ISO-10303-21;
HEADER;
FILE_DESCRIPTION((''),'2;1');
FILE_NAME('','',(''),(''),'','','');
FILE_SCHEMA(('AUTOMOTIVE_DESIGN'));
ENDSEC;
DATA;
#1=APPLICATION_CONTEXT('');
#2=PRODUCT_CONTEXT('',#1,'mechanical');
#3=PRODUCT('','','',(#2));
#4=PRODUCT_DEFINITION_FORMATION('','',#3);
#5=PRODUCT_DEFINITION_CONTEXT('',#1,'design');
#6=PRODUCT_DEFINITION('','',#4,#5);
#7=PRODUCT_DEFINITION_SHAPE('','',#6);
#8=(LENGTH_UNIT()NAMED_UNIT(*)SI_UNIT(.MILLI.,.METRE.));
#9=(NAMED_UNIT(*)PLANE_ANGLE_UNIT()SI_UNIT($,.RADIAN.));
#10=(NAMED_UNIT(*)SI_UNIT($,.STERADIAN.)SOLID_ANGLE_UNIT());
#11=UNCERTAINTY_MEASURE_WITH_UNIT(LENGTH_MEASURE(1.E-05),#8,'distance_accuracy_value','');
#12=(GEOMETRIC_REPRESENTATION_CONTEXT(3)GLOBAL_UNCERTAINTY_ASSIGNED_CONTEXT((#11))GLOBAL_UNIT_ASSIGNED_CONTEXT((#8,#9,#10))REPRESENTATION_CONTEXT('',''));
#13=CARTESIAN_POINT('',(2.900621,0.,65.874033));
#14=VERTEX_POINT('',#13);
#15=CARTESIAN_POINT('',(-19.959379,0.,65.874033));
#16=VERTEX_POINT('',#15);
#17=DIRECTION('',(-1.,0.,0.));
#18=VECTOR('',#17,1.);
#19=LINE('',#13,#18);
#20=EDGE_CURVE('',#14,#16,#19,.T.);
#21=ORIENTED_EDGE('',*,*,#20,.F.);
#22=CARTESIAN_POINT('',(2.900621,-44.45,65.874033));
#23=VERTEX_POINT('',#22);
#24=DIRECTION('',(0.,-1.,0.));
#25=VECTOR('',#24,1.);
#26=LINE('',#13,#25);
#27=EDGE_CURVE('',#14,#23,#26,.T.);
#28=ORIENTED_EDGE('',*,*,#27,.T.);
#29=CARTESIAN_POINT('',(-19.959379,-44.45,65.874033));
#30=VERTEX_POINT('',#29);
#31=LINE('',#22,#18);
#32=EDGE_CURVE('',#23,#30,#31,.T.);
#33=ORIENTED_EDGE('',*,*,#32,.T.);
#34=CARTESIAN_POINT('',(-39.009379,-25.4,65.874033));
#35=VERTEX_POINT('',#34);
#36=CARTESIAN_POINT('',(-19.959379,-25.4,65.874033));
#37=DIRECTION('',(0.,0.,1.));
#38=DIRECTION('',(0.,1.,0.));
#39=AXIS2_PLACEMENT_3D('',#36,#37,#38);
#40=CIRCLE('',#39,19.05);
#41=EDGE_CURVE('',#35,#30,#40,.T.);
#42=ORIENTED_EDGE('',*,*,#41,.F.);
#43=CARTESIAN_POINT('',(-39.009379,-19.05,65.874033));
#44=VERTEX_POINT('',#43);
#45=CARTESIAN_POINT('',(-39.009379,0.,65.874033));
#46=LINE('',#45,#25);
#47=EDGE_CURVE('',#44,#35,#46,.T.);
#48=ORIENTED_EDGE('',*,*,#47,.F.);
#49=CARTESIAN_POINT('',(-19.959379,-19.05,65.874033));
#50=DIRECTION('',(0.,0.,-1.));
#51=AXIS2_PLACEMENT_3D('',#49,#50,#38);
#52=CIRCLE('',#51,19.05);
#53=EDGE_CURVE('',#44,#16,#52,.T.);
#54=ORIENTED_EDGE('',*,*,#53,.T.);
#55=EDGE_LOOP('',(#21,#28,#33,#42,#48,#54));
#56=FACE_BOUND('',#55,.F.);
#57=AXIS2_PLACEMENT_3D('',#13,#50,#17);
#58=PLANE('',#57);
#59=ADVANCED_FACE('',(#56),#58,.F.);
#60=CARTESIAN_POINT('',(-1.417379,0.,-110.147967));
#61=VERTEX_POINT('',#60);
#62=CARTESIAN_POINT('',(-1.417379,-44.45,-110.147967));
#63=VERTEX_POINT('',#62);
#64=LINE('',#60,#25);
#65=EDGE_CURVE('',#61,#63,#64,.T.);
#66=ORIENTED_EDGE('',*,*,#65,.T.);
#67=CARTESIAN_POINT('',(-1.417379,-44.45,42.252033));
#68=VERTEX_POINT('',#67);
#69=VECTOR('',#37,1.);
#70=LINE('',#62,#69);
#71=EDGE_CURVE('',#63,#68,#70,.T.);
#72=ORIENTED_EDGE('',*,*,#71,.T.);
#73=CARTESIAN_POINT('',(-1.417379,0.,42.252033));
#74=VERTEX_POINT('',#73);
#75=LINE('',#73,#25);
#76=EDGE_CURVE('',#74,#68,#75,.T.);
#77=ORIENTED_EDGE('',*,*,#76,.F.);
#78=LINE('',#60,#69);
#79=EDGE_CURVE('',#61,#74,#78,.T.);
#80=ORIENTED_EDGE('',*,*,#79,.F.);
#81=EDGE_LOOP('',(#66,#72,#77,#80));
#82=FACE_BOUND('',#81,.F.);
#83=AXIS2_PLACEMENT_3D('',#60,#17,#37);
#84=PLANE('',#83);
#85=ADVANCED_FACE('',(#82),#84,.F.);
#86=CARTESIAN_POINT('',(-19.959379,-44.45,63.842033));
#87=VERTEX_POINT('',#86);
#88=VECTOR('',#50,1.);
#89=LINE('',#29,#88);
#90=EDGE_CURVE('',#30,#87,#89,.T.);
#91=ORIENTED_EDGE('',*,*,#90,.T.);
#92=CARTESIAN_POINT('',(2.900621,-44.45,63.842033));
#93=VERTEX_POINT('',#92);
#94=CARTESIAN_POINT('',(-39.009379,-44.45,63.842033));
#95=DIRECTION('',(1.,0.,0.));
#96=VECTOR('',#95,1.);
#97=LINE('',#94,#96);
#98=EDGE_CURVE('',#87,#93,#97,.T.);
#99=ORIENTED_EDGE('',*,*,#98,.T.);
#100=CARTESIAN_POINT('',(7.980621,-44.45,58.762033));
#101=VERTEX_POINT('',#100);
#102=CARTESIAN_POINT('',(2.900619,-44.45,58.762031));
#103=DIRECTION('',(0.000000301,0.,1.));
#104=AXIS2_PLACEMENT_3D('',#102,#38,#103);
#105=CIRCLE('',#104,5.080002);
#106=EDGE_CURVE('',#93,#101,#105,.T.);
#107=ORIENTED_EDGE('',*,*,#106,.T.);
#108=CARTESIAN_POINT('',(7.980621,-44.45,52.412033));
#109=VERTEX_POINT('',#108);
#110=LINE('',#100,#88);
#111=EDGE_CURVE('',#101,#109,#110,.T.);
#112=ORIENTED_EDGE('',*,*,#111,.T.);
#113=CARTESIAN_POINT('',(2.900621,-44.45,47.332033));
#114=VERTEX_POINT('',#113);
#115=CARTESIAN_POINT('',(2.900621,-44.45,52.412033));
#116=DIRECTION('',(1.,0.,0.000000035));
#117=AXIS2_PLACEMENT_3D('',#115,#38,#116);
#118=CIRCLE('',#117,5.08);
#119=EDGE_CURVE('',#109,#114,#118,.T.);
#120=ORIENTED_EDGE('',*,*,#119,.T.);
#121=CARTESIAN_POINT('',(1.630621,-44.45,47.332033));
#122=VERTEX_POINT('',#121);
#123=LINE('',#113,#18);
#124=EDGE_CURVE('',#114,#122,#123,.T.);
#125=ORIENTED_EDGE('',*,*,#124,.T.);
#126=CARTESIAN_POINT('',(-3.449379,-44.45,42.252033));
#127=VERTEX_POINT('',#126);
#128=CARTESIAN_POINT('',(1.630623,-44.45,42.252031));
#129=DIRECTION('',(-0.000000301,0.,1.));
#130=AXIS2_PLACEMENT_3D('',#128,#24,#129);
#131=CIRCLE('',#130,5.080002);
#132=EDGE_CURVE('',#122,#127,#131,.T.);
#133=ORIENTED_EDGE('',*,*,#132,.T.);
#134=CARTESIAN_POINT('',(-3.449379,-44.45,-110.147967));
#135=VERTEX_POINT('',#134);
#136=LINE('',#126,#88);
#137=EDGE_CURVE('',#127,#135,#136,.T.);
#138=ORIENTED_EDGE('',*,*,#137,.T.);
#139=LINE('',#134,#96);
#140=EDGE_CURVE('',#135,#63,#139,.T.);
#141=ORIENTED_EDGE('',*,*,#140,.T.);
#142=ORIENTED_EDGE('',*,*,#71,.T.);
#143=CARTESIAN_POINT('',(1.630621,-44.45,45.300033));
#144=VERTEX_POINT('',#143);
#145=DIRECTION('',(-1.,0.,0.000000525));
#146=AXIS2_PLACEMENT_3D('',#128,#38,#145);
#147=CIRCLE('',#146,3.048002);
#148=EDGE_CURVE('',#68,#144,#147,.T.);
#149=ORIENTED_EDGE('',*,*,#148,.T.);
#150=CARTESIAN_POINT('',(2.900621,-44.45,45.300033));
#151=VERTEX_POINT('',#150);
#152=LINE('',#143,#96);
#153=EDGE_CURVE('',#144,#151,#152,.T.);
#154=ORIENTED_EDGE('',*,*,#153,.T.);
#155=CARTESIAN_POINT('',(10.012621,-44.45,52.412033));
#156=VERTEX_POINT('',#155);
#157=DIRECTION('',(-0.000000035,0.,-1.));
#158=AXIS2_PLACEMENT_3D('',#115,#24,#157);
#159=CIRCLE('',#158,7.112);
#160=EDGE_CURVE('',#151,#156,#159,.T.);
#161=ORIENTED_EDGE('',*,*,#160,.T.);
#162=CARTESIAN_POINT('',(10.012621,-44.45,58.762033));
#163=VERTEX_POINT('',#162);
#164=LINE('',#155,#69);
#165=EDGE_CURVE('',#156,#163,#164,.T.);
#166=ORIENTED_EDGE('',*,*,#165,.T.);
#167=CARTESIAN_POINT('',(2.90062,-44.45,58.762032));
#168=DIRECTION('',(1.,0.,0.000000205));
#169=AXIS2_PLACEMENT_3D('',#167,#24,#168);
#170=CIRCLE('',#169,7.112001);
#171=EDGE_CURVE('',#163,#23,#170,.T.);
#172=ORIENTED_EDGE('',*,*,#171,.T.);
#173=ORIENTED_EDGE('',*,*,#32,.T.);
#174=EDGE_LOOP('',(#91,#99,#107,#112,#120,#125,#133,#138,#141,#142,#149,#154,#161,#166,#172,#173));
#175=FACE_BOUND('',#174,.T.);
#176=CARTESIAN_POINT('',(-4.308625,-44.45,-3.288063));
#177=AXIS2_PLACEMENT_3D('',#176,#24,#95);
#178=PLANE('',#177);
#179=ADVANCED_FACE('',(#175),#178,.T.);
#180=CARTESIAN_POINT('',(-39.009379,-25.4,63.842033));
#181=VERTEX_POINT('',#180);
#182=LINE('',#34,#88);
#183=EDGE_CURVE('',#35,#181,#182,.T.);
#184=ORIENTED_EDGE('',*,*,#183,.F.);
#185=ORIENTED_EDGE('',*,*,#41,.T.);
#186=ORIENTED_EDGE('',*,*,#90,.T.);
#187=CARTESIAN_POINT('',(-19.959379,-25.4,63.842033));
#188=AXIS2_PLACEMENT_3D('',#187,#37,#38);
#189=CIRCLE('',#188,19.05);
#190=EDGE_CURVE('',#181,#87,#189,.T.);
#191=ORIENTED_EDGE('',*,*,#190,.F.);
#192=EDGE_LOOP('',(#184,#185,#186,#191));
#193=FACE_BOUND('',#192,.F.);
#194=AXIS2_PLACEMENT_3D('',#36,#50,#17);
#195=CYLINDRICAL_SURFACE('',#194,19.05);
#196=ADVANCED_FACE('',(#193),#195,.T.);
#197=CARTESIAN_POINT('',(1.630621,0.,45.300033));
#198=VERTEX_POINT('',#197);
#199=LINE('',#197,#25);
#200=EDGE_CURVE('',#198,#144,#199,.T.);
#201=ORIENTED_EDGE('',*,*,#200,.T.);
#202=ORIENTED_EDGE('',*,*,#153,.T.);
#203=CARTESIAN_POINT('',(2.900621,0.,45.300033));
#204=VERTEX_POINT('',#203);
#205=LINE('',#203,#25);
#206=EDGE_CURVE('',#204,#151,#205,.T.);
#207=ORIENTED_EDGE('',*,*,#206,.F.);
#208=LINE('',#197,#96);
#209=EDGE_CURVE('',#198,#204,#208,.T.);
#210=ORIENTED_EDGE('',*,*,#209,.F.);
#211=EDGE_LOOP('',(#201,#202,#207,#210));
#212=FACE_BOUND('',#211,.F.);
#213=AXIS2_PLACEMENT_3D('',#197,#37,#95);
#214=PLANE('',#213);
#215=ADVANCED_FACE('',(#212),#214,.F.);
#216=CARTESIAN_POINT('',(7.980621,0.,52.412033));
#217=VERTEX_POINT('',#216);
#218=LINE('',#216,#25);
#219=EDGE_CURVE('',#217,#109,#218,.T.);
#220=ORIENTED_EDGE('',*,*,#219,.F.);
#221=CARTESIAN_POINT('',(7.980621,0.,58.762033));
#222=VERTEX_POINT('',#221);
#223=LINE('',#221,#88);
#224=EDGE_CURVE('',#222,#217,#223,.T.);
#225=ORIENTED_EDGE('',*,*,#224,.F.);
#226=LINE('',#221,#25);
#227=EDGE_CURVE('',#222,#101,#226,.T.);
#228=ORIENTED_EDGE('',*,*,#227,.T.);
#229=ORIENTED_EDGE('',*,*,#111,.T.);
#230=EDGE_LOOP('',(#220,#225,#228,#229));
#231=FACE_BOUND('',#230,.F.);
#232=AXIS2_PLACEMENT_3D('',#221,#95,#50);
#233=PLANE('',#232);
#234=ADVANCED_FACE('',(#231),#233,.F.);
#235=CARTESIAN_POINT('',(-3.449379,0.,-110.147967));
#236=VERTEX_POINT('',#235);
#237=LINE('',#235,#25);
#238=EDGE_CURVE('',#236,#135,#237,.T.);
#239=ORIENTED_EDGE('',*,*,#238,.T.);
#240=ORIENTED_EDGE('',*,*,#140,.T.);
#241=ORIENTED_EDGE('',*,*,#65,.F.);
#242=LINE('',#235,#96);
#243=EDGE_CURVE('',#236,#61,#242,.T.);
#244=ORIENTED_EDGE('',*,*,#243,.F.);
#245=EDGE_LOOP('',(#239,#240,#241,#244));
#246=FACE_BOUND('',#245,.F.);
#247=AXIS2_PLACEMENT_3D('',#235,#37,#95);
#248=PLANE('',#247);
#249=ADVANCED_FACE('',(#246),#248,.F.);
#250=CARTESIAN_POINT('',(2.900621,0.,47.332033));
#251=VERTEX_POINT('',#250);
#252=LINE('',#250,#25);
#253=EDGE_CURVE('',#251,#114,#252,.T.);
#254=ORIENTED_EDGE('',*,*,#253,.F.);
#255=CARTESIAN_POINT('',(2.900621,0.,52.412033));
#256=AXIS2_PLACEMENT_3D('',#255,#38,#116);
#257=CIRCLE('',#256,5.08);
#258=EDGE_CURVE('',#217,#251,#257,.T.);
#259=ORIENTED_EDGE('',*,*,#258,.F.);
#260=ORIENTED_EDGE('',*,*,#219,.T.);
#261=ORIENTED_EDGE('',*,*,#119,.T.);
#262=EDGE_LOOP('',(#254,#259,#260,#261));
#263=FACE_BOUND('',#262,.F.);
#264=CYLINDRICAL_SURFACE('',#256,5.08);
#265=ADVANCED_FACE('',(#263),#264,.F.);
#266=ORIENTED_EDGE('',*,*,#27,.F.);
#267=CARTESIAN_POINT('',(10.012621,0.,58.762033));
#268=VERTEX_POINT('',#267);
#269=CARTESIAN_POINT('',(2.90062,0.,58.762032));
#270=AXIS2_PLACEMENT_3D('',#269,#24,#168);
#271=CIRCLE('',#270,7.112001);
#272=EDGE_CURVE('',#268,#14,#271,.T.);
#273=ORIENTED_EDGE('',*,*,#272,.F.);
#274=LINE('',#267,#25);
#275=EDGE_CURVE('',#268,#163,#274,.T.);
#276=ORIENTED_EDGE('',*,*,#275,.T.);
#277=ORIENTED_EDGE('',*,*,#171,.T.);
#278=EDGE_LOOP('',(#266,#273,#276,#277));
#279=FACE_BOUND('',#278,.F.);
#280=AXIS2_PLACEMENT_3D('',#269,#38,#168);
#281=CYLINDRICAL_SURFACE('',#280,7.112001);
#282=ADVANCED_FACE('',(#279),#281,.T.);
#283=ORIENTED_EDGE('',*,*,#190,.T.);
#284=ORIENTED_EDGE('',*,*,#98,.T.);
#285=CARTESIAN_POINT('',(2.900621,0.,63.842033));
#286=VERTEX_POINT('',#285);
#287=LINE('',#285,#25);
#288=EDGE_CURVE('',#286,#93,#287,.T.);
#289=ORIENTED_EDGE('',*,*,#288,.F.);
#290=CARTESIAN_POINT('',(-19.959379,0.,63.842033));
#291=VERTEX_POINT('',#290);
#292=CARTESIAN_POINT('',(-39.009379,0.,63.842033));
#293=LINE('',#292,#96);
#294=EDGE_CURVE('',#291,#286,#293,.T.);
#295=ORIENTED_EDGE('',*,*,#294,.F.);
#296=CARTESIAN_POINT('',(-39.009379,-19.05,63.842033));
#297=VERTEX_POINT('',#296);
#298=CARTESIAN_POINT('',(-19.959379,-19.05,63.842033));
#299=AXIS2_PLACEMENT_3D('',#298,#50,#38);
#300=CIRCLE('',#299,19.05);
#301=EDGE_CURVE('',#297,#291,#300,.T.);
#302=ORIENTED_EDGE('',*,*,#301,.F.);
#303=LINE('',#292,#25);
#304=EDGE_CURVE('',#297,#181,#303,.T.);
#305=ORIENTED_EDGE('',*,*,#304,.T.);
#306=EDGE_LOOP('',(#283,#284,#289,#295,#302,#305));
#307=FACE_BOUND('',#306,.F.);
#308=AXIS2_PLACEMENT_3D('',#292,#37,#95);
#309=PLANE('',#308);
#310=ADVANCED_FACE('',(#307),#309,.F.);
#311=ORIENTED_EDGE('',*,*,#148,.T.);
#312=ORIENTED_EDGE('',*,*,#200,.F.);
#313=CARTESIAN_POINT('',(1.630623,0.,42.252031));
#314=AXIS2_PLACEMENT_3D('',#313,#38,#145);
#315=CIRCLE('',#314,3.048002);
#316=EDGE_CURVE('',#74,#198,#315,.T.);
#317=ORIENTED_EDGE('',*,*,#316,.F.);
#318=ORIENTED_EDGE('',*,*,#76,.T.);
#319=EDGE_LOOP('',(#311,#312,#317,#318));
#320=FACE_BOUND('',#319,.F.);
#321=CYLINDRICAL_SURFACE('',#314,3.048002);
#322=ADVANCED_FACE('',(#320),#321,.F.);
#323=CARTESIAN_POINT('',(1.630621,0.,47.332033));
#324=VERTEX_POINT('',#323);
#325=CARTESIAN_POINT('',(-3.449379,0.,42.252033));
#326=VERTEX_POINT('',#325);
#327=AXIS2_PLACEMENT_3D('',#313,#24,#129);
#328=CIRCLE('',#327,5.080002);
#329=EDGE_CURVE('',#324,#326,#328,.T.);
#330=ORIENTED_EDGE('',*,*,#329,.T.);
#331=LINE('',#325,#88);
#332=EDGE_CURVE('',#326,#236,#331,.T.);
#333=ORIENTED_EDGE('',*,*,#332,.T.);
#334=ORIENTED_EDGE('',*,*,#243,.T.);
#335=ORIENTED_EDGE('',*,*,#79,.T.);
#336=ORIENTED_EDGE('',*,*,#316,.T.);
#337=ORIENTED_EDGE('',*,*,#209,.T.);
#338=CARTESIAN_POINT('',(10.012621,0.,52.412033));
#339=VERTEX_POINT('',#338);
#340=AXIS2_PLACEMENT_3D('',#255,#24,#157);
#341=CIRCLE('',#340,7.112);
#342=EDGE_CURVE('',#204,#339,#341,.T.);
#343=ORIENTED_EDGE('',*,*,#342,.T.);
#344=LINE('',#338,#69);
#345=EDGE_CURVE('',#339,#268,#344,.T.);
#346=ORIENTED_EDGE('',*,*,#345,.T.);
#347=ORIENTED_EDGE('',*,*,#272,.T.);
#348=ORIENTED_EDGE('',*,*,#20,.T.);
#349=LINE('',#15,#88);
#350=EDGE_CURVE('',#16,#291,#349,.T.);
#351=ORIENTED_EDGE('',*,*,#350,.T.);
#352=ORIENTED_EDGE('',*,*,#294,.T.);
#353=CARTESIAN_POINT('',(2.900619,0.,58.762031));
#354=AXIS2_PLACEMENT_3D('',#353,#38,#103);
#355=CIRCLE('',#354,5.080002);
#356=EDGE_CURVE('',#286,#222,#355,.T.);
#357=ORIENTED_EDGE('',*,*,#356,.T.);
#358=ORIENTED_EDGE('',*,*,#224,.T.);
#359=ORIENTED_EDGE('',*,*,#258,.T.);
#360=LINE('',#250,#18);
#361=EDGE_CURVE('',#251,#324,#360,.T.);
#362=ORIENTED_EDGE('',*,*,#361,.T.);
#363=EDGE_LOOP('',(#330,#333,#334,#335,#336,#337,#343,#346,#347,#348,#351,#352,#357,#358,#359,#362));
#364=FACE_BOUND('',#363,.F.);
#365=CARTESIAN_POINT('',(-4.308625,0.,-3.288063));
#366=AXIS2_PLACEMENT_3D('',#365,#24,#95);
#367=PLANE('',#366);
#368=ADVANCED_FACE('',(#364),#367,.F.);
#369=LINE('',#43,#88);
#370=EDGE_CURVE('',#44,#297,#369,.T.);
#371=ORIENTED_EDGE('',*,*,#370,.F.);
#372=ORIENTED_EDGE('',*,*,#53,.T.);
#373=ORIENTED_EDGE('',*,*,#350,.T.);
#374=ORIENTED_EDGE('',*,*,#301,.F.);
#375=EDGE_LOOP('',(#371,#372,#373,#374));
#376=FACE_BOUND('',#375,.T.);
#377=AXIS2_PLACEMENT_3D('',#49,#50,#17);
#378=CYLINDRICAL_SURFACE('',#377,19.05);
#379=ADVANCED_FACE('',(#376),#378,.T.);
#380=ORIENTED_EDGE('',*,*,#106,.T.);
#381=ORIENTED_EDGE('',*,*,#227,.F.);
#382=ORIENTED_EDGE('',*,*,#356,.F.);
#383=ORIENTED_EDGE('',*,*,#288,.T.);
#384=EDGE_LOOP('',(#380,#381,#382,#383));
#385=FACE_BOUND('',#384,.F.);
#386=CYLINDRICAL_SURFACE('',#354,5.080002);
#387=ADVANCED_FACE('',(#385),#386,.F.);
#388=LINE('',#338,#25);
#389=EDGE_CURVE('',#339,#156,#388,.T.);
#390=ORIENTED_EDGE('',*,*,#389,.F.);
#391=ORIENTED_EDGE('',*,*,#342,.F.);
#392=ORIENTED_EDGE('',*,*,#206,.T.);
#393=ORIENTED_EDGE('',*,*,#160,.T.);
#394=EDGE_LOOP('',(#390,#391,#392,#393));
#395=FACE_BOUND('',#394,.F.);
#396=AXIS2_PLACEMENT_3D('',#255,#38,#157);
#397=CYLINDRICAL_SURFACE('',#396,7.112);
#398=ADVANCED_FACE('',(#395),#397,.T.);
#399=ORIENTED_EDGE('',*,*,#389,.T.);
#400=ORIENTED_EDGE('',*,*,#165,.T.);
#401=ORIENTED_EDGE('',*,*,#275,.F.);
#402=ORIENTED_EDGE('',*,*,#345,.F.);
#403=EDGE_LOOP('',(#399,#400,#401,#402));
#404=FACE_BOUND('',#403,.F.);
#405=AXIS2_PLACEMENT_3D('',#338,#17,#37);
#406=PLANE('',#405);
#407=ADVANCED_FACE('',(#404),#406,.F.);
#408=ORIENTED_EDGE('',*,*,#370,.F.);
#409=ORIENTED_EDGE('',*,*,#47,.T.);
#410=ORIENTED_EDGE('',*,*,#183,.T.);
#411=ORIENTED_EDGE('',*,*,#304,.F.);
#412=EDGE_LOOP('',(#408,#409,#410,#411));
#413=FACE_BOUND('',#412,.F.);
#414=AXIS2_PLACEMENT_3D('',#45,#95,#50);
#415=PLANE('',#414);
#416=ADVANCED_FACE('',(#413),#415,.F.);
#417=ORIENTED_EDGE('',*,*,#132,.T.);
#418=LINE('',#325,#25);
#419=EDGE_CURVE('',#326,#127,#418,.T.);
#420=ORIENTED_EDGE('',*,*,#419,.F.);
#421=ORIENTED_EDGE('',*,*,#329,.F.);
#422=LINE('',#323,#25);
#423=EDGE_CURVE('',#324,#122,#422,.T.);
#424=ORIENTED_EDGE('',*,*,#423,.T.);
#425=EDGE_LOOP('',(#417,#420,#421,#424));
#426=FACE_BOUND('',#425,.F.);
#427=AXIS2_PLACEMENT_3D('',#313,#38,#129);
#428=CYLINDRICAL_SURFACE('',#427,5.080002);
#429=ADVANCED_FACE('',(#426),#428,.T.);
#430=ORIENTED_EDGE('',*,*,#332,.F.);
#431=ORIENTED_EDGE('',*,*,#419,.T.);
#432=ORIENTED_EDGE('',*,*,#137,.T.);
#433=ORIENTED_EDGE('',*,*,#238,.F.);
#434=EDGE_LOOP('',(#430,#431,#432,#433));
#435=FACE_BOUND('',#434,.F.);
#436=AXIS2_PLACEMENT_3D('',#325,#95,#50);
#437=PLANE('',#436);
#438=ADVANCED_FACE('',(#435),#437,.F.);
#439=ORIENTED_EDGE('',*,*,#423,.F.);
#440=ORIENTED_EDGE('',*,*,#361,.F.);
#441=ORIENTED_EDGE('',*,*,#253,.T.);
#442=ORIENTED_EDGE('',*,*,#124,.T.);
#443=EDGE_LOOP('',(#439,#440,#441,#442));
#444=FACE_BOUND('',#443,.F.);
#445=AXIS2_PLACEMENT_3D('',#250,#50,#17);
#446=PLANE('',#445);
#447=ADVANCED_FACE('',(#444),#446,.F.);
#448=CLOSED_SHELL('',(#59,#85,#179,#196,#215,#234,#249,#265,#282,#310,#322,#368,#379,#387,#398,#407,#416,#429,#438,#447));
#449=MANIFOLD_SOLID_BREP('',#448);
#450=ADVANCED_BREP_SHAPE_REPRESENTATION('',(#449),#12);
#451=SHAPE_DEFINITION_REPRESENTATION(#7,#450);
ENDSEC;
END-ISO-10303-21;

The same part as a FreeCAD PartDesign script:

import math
import FreeCAD as App
import Part
import Sketcher
Q = App.Units.Quantity


def edges_at(feature, points):
    """Names of the edges that pass closest to the given points."""
    edges = feature.Shape.Edges
    near = lambda p: min(range(len(edges)), key=lambda i: edges[i].distToShape(Part.Vertex(*p))[0])
    return sorted({f"Edge{near(p) + 1}" for p in points})

doc = App.newDocument("Part")
body = doc.addObject("PartDesign::Body", "Body")

sketch1 = body.newObject("Sketcher::SketchObject", "Sketch")
sketch1.AttachmentSupport = (doc.getObject("XZ_Plane"), [""])
sketch1.MapMode = "FlatFace"
sketch1.addGeometry([
    Part.LineSegment(App.Vector(-39, 65.9, 0), App.Vector(-39, 63.8, 0)),
    Part.LineSegment(App.Vector(-39, 63.8, 0), App.Vector(2.9, 63.8, 0)),
    Part.ArcOfCircle(Part.Circle(App.Vector(2.9, 58.8, 0), App.Vector(0, 0, 1), 5.1), math.radians(0), math.radians(90)),
    Part.LineSegment(App.Vector(8, 58.8, 0), App.Vector(8, 52.4, 0)),
    Part.ArcOfCircle(Part.Circle(App.Vector(2.9, 52.4, 0), App.Vector(0, 0, 1), 5.1), math.radians(-90), math.radians(0)),
    Part.LineSegment(App.Vector(2.9, 47.3, 0), App.Vector(1.6, 47.3, 0)),
    Part.ArcOfCircle(Part.Circle(App.Vector(1.6, 42.3, 0), App.Vector(0, 0, 1), 5.1), math.radians(90), math.radians(180)),
    Part.LineSegment(App.Vector(-3.4, 42.3, 0), App.Vector(-3.4, -110.1, 0)),
    Part.LineSegment(App.Vector(-3.4, -110.1, 0), App.Vector(-1.4, -110.1, 0)),
    Part.LineSegment(App.Vector(-1.4, -110.1, 0), App.Vector(-1.4, 42.3, 0)),
    Part.ArcOfCircle(Part.Circle(App.Vector(1.6, 42.3, 0), App.Vector(0, 0, 1), 3), math.radians(90), math.radians(180)),
    Part.LineSegment(App.Vector(1.6, 45.3, 0), App.Vector(2.9, 45.3, 0)),
    Part.ArcOfCircle(Part.Circle(App.Vector(2.9, 52.4, 0), App.Vector(0, 0, 1), 7.1), math.radians(-90), math.radians(0)),
    Part.LineSegment(App.Vector(10, 52.4, 0), App.Vector(10, 58.8, 0)),
    Part.ArcOfCircle(Part.Circle(App.Vector(2.9, 58.8, 0), App.Vector(0, 0, 1), 7.1), math.radians(0), math.radians(90)),
    Part.LineSegment(App.Vector(2.9, 65.9, 0), App.Vector(-39, 65.9, 0)),
], False)
sketch1.addConstraint([
    Sketcher.Constraint("Coincident", 0, 2, 1, 1),
    Sketcher.Constraint("Tangent", 1, 2, 2, 2),
    Sketcher.Constraint("Tangent", 2, 1, 3, 1),
    Sketcher.Constraint("Tangent", 3, 2, 4, 2),
    Sketcher.Constraint("Tangent", 4, 1, 5, 1),
    Sketcher.Constraint("Tangent", 5, 2, 6, 1),
    Sketcher.Constraint("Tangent", 6, 2, 7, 1),
    Sketcher.Constraint("Coincident", 7, 2, 8, 1),
    Sketcher.Constraint("Coincident", 8, 2, 9, 1),
    Sketcher.Constraint("Tangent", 9, 2, 10, 2),
    Sketcher.Constraint("Tangent", 10, 1, 11, 1),
    Sketcher.Constraint("Tangent", 11, 2, 12, 1),
    Sketcher.Constraint("Tangent", 12, 2, 13, 1),
    Sketcher.Constraint("Tangent", 13, 2, 14, 1),
    Sketcher.Constraint("Tangent", 14, 2, 15, 1),
    Sketcher.Constraint("Coincident", 15, 2, 0, 1),
    Sketcher.Constraint("Vertical", 0),
    Sketcher.Constraint("Horizontal", 1),
    Sketcher.Constraint("Vertical", 3),
    Sketcher.Constraint("Horizontal", 5),
    Sketcher.Constraint("Vertical", 7),
    Sketcher.Constraint("Horizontal", 8),
    Sketcher.Constraint("Vertical", 9),
    Sketcher.Constraint("Horizontal", 11),
    Sketcher.Constraint("Vertical", 13),
    Sketcher.Constraint("Horizontal", 15),
    Sketcher.Constraint("Coincident", 10, 3, 6, 3),
    Sketcher.Constraint("Coincident", 12, 3, 4, 3),
    Sketcher.Constraint("Coincident", 14, 3, 2, 3),
    Sketcher.Constraint("Equal", 2, 4),
    Sketcher.Constraint("Equal", 4, 6),
    Sketcher.Constraint("Radius", 2, Q("0.2000001 in")),
    Sketcher.Constraint("DistanceY", 7, 2, 7, 1, Q("6 in")),
    Sketcher.Constraint("Radius", 10, Q("0.1200001 in")),
    Sketcher.Constraint("DistanceX", 1, 1, 1, 2, Q("1.65 in")),
    Sketcher.Constraint("DistanceX", 5, 2, 5, 1, Q("0.05 in")),
    Sketcher.Constraint("DistanceY", 3, 2, 3, 1, Q("0.25 in")),
    Sketcher.Constraint("DistanceX", -1, 1, 2, 3, Q("2.900619 mm")),
    Sketcher.Constraint("DistanceY", -1, 1, 2, 3, Q("58.762031 mm")),
])
pad1 = body.newObject("PartDesign::Pad", "Pad")
pad1.Profile = sketch1
pad1.Length = Q("1.75 in")
doc.recompute()

fillet = body.newObject("PartDesign::Fillet", "Fillet")
fillet.Base = (pad1, edges_at(pad1, [(-39.009, 0, 64.858), (-39.009, -44.45, 64.858)]))
fillet.Radius = Q("0.75 in")

doc.recompute()
